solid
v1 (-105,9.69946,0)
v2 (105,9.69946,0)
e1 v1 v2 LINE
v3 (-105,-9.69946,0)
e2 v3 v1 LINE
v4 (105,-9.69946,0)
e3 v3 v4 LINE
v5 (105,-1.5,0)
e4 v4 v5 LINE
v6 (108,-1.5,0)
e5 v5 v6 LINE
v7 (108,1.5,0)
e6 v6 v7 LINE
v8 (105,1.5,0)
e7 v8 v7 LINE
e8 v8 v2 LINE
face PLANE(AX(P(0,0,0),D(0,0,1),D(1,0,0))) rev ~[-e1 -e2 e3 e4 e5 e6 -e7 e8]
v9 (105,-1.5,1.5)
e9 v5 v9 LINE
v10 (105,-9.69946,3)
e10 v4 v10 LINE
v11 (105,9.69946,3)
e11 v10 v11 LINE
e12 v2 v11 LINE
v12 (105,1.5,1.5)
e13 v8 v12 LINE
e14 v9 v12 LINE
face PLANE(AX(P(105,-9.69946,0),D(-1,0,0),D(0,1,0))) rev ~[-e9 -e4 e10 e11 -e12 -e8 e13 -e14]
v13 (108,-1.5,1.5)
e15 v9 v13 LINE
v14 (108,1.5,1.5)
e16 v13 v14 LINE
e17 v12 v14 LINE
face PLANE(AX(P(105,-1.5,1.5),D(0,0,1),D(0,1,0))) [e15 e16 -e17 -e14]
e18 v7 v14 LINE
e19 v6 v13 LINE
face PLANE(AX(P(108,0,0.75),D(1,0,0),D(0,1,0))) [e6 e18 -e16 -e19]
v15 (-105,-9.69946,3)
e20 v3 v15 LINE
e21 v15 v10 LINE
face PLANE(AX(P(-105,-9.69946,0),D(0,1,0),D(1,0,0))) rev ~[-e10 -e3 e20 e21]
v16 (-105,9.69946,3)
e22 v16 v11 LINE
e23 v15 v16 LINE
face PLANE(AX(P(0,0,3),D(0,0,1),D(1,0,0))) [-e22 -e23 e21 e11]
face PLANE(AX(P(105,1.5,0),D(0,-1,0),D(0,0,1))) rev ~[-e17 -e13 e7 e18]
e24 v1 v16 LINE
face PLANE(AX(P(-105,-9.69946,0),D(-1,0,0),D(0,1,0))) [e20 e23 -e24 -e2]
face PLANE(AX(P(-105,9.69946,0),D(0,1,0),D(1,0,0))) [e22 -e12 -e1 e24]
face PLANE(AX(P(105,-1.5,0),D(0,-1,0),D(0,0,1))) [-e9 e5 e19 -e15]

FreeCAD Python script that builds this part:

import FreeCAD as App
import Part
import Sketcher

V = App.Vector

doc = App.newDocument("Part")
params = doc.addObject("Spreadsheet::Sheet", "Params")
for row, (alias, value) in enumerate([
    ("sketch1_width", "210 mm"),
    ("pad1_length", "3 mm"),
    ("sketch2_width", "3 mm"),
    ("sketch2_height", "1.5 mm"),
    ("pad2_length", "3 mm"),
], start=1):
    params.set(f"A{row}", alias)
    params.set(f"B{row}", "=" + value)
    params.setAlias(f"B{row}", alias)

body = doc.addObject("PartDesign::Body", "Body")

# Sketch on XY plane
sketch1 = body.newObject("Sketcher::SketchObject", "Sketch")
sketch1.AttachmentSupport = (doc.getObject("XY_Plane"), [""])
sketch1.MapMode = "FlatFace"
sketch1.addGeometry(Part.LineSegment(V(-105, 9.69946, 0), V(-105, -9.69946, 0)), False)
sketch1.addGeometry(Part.LineSegment(V(-105, -9.69946, 0), V(105, -9.69946, 0)), False)
sketch1.addGeometry(Part.LineSegment(V(105, -9.69946, 0), V(105, 9.69946, 0)), False)
sketch1.addGeometry(Part.LineSegment(V(105, 9.69946, 0), V(-105, 9.69946, 0)), False)
sketch1.addConstraint(Sketcher.Constraint("Coincident", 0, 2, 1, 1))
sketch1.addConstraint(Sketcher.Constraint("Coincident", 1, 2, 2, 1))
sketch1.addConstraint(Sketcher.Constraint("Coincident", 2, 2, 3, 1))
sketch1.addConstraint(Sketcher.Constraint("Coincident", 3, 2, 0, 1))
sketch1.addConstraint(Sketcher.Constraint("Vertical", 0))
sketch1.addConstraint(Sketcher.Constraint("Horizontal", 1))
sketch1.addConstraint(Sketcher.Constraint("Vertical", 2))
sketch1.addConstraint(Sketcher.Constraint("Horizontal", 3))
sketch1.addConstraint(Sketcher.Constraint("Symmetric", 0, 2, 2, 2, -1, 1))
sketch1.addConstraint(Sketcher.Constraint("DistanceX", 1, 1, 1, 2, 210.0))
sketch1.addConstraint(Sketcher.Constraint("DistanceY", 0, 2, 0, 1, 19.39892))
sketch1.setExpression("Constraints[9]", "Params.sketch1_width")
pad1 = body.newObject("PartDesign::Pad", "Pad")
pad1.Profile = sketch1
pad1.setExpression("Length", "Params.pad1_length")

# Sketch on YZ plane
sketch2 = body.newObject("Sketcher::SketchObject", "Sketch001")
sketch2.AttachmentSupport = (doc.getObject("YZ_Plane"), [""])
sketch2.MapMode = "FlatFace"
sketch2.AttachmentOffset = App.Placement(V(0, 0, 105), App.Rotation())
sketch2.addGeometry(Part.LineSegment(V(-1.5, 1.5, 0), V(-1.5, 0, 0)), False)
sketch2.addGeometry(Part.LineSegment(V(-1.5, 0, 0), V(1.5, 0, 0)), False)
sketch2.addGeometry(Part.LineSegment(V(1.5, 0, 0), V(1.5, 1.5, 0)), False)
sketch2.addGeometry(Part.LineSegment(V(1.5, 1.5, 0), V(-1.5, 1.5, 0)), False)
sketch2.addConstraint(Sketcher.Constraint("Coincident", 0, 2, 1, 1))
sketch2.addConstraint(Sketcher.Constraint("Coincident", 1, 2, 2, 1))
sketch2.addConstraint(Sketcher.Constraint("Coincident", 2, 2, 3, 1))
sketch2.addConstraint(Sketcher.Constraint("Coincident", 3, 2, 0, 1))
sketch2.addConstraint(Sketcher.Constraint("Vertical", 0))
sketch2.addConstraint(Sketcher.Constraint("Horizontal", 1))
sketch2.addConstraint(Sketcher.Constraint("Vertical", 2))
sketch2.addConstraint(Sketcher.Constraint("Horizontal", 3))
sketch2.addConstraint(Sketcher.Constraint("Symmetric", 0, 2, 1, 2, -1, 1))
sketch2.addConstraint(Sketcher.Constraint("DistanceX", 1, 1, 1, 2, 3.0))
sketch2.addConstraint(Sketcher.Constraint("DistanceY", 0, 2, 0, 1, 1.5))
sketch2.setExpression("Constraints[9]", "Params.sketch2_width")
sketch2.setExpression("Constraints[10]", "Params.sketch2_height")
pad2 = body.newObject("PartDesign::Pad", "Pad001")
pad2.Profile = sketch2
pad2.setExpression("Length", "Params.pad2_length")

doc.recompute()
